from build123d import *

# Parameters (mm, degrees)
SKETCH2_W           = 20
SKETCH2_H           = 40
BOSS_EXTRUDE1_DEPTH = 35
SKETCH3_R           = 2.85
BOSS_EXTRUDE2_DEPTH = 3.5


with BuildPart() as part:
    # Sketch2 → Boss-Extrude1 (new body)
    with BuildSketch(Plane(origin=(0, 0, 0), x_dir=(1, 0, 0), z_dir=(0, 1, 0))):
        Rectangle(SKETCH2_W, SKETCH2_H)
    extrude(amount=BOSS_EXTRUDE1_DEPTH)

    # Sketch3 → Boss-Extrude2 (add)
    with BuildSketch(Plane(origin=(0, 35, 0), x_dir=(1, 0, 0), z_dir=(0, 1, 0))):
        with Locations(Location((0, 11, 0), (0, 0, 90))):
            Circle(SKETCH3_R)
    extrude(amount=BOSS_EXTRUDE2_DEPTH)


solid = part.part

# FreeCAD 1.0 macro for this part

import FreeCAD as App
import Part
import Sketcher
Q = App.Units.Quantity


def add_polygon(sketch, points):
    """Adds a closed chain of lines whose ends are joined by coincident constraints."""
    first, n = sketch.GeometryCount, len(points)
    for a, b in zip(points, points[1:] + points[:1]):
        sketch.addGeometry(Part.LineSegment(App.Vector(*a, 0), App.Vector(*b, 0)), False)
    for i in range(n):
        sketch.addConstraint(Sketcher.Constraint("Coincident", first + i, 2, first + (i + 1) % n, 1))

doc = App.newDocument("Part")
body = doc.addObject("PartDesign::Body", "Body")

# Sketch on XZ plane
sketch1 = doc.addObject("Sketcher::SketchObject", "Sketch")
body.addObject(sketch1)
sketch1.AttachmentSupport = (doc.XZ_Plane, [""])
sketch1.MapMode = "FlatFace"
add_polygon(sketch1, [(-10, -20), (-10, 20), (10, 20), (10, -20)])  # lines 0-3
sketch1.addConstraint([
    Sketcher.Constraint("Vertical", 0),
    Sketcher.Constraint("Horizontal", 1),
    Sketcher.Constraint("Vertical", 2),
    Sketcher.Constraint("Horizontal", 3),
    Sketcher.Constraint("Symmetric", 0, 2, 2, 2, -1, 1),
    Sketcher.Constraint("DistanceX", 1, 1, 1, 2, Q("20 mm")),
    Sketcher.Constraint("DistanceY", 0, 1, 0, 2, Q("40 mm")),
])
pad1 = doc.addObject("PartDesign::Pad", "Pad")
body.addObject(pad1)
pad1.Profile = sketch1
pad1.Length = 35
pad1.Reversed = True

# Sketch on XZ plane
sketch2 = doc.addObject("Sketcher::SketchObject", "Sketch001")
body.addObject(sketch2)
sketch2.AttachmentSupport = (doc.XZ_Plane, [""])
sketch2.MapMode = "FlatFace"
sketch2.AttachmentOffset = App.Placement(App.Vector(0, 0, -35), App.Rotation())
sketch2.addGeometry(Part.Circle(App.Vector(0, -11, 0), App.Vector(0, 0, 1), 2.9), False)
sketch2.addConstraint([
    Sketcher.Constraint("PointOnObject", 0, 3, -2),
    Sketcher.Constraint("Diameter", 0, Q("5.7 mm")),
    Sketcher.Constraint("DistanceY", 0, 3, -1, 1, Q("11 mm")),
])
pad2 = doc.addObject("PartDesign::Pad", "Pad001")
body.addObject(pad2)
pad2.Profile = sketch2
pad2.Length = 3.5
pad2.Reversed = True

doc.recompute()
